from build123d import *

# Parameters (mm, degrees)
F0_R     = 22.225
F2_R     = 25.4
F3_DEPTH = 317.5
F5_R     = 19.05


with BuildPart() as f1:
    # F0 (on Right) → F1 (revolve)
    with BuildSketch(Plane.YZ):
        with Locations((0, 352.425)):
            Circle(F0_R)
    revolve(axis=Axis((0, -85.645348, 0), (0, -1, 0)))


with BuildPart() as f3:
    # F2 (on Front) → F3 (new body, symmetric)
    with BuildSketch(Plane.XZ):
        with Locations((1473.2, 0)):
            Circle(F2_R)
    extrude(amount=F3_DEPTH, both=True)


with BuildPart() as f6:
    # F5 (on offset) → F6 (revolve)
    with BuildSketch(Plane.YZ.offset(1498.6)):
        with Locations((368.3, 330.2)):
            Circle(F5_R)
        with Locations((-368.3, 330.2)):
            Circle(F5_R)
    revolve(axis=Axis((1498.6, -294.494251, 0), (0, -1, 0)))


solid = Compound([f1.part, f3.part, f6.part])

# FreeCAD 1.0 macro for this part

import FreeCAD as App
import Part
import Sketcher
Q = App.Units.Quantity

doc = App.newDocument("Part")
params = doc.addObject("Spreadsheet::Sheet", "Params")
for row, (alias, value) in enumerate([
    ("sketch1_diameter", "1.75 in"),
    ("revolution_angle", "360 deg"),
    ("sketch2_diameter", "2 in"),
    ("pad1_length", "25 in"),
    ("sketch3_diameter", "1.5 in"),
    ("revolution2_angle", "360 deg"),
], start=1):
    params.set(f"A{row}", alias)
    params.set(f"B{row}", "=" + value)
    params.setAlias(f"B{row}", alias)

body = doc.addObject("PartDesign::Body", "Body")

sketch1 = body.newObject("Sketcher::SketchObject", "Sketch")
sketch1.AttachmentSupport = (doc.getObject("YZ_Plane"), [""])
sketch1.MapMode = "FlatFace"
sketch1.addGeometry(Part.Circle(App.Vector(0, 352.425, 0), App.Vector(0, 0, 1), 22.225), False)
sketch1.addConstraint(Sketcher.Constraint("PointOnObject", 0, 3, -2))
sketch1.addConstraint(Sketcher.Constraint("Diameter", 0, Q("1.75 in")))
sketch1.addConstraint(Sketcher.Constraint("DistanceY", -1, 1, 0, 3, Q("13.875 in")))
sketch1.setExpression("Constraints[1]", "Params.sketch1_diameter")
revolution = body.newObject("PartDesign::Revolution", "Revolution")
revolution.Profile = sketch1
revolution.ReferenceAxis = (sketch1, ["H_Axis"])
revolution.setExpression("Angle", "Params.revolution_angle")
body2 = doc.addObject("PartDesign::Body", "Body001")

sketch2 = body2.newObject("Sketcher::SketchObject", "Sketch001")
sketch2.AttachmentSupport = (doc.getObject("XZ_Plane001"), [""])
sketch2.MapMode = "FlatFace"
sketch2.addGeometry(Part.Circle(App.Vector(1473.2, 0, 0), App.Vector(0, 0, 1), 25.4), False)
sketch2.addConstraint(Sketcher.Constraint("PointOnObject", 0, 3, -1))
sketch2.addConstraint(Sketcher.Constraint("Diameter", 0, Q("2 in")))
sketch2.addConstraint(Sketcher.Constraint("DistanceX", -1, 1, 0, 3, Q("58 in")))
sketch2.setExpression("Constraints[1]", "Params.sketch2_diameter")
pad1 = body2.newObject("PartDesign::Pad", "Pad")
pad1.Profile = sketch2
pad1.setExpression("Length", "Params.pad1_length")
pad1.Midplane = True
body3 = doc.addObject("PartDesign::Body", "Body002")
body3.AllowCompound = True

sketch3 = body3.newObject("Sketcher::SketchObject", "Sketch002")
sketch3.AttachmentSupport = (doc.getObject("YZ_Plane002"), [""])
sketch3.MapMode = "FlatFace"
sketch3.AttachmentOffset = App.Placement(App.Vector(0, 0, 59 * 25.4), App.Rotation())
sketch3.addGeometry(Part.Circle(App.Vector(368.3, 330.2, 0), App.Vector(0, 0, 1), 19.05), False)
sketch3.addGeometry(Part.Circle(App.Vector(-368.3, 330.2, 0), App.Vector(0, 0, 1), 19.05), False)
sketch3.addConstraint(Sketcher.Constraint("Equal", 0, 1))
sketch3.addConstraint(Sketcher.Constraint("Symmetric", 0, 3, 1, 3, -2))
sketch3.addConstraint(Sketcher.Constraint("Diameter", 0, Q("1.5 in")))
sketch3.addConstraint(Sketcher.Constraint("DistanceY", -1, 1, 0, 3, Q("13 in")))
sketch3.addConstraint(Sketcher.Constraint("DistanceX", 1, 3, 0, 3, Q("29 in")))
sketch3.setExpression("Constraints[2]", "Params.sketch3_diameter")
revolution2 = body3.newObject("PartDesign::Revolution", "Revolution001")
revolution2.Profile = sketch3
revolution2.ReferenceAxis = (sketch3, ["H_Axis"])
revolution2.setExpression("Angle", "Params.revolution2_angle")

doc.recompute()
